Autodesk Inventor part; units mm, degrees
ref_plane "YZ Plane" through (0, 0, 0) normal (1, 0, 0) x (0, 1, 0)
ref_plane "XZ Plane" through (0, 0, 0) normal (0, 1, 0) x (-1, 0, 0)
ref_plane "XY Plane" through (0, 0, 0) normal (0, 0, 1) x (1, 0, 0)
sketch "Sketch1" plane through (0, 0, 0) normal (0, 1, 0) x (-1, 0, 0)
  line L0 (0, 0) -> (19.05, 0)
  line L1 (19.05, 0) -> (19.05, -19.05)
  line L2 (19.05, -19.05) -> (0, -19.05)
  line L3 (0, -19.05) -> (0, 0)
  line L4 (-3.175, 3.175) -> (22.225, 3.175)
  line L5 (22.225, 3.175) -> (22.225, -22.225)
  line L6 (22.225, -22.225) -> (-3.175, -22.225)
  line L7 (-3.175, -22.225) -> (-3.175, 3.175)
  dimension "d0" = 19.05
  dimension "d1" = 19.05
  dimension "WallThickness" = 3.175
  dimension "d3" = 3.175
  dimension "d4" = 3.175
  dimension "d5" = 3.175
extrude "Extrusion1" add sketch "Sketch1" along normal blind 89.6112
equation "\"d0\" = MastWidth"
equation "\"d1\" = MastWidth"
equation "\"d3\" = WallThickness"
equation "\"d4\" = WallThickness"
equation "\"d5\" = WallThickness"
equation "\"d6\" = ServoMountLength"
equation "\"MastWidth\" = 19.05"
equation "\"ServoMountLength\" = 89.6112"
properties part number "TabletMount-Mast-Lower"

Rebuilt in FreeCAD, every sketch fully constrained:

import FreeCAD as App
import Part
import Sketcher
Q = App.Units.Quantity

doc = App.newDocument("Part")
body = doc.addObject("PartDesign::Body", "Body")

# Sketch on XZ plane
sketch1 = body.newObject("Sketcher::SketchObject", "Sketch")
sketch1.AttachmentSupport = (doc.getObject("XZ_Plane"), [""])
sketch1.MapMode = "FlatFace"
sketch1.addGeometry(Part.LineSegment(App.Vector(-22.225, 3.175, 0), App.Vector(3.175, 3.175, 0)), False)
sketch1.addGeometry(Part.LineSegment(App.Vector(3.175, 3.175, 0), App.Vector(3.175, -22.225, 0)), False)
sketch1.addGeometry(Part.LineSegment(App.Vector(3.175, -22.225, 0), App.Vector(-22.225, -22.225, 0)), False)
sketch1.addGeometry(Part.LineSegment(App.Vector(-22.225, -22.225, 0), App.Vector(-22.225, 3.175, 0)), False)
sketch1.addGeometry(Part.LineSegment(App.Vector(0, -19.05, 0), App.Vector(0, 0, 0)), False)
sketch1.addGeometry(Part.LineSegment(App.Vector(0, 0, 0), App.Vector(-19.05, 0, 0)), False)
sketch1.addGeometry(Part.LineSegment(App.Vector(-19.05, 0, 0), App.Vector(-19.05, -19.05, 0)), False)
sketch1.addGeometry(Part.LineSegment(App.Vector(-19.05, -19.05, 0), App.Vector(0, -19.05, 0)), False)
sketch1.addConstraint(Sketcher.Constraint("Coincident", 0, 2, 1, 1))
sketch1.addConstraint(Sketcher.Constraint("Coincident", 1, 2, 2, 1))
sketch1.addConstraint(Sketcher.Constraint("Coincident", 2, 2, 3, 1))
sketch1.addConstraint(Sketcher.Constraint("Coincident", 3, 2, 0, 1))
sketch1.addConstraint(Sketcher.Constraint("Coincident", 4, 2, 5, 1))
sketch1.addConstraint(Sketcher.Constraint("Coincident", 5, 2, 6, 1))
sketch1.addConstraint(Sketcher.Constraint("Coincident", 6, 2, 7, 1))
sketch1.addConstraint(Sketcher.Constraint("Coincident", 7, 2, 4, 1))
sketch1.addConstraint(Sketcher.Constraint("Horizontal", 0))
sketch1.addConstraint(Sketcher.Constraint("Vertical", 1))
sketch1.addConstraint(Sketcher.Constraint("Horizontal", 2))
sketch1.addConstraint(Sketcher.Constraint("Vertical", 3))
sketch1.addConstraint(Sketcher.Constraint("Vertical", 4))
sketch1.addConstraint(Sketcher.Constraint("Horizontal", 5))
sketch1.addConstraint(Sketcher.Constraint("Vertical", 6))
sketch1.addConstraint(Sketcher.Constraint("Horizontal", 7))
sketch1.addConstraint(Sketcher.Constraint("Coincident", 4, 2, -1, 1))
sketch1.addConstraint(Sketcher.Constraint("Equal", 2, 1))
sketch1.addConstraint(Sketcher.Constraint("Equal", 7, 4))
sketch1.addConstraint(Sketcher.Constraint("DistanceX", 5, 2, 5, 1, Q("0.75 in")))
sketch1.addConstraint(Sketcher.Constraint("DistanceX", 0, 1, 0, 2, Q("1 in")))
sketch1.addConstraint(Sketcher.Constraint("DistanceX", -1, 1, 0, 2, Q("0.125 in")))
sketch1.addConstraint(Sketcher.Constraint("DistanceY", -1, 1, 0, 2, Q("0.125 in")))
pad1 = body.newObject("PartDesign::Pad", "Pad")
pad1.Profile = sketch1
pad1.Length = Q("3.528 in")
pad1.Reversed = True

doc.recompute()
